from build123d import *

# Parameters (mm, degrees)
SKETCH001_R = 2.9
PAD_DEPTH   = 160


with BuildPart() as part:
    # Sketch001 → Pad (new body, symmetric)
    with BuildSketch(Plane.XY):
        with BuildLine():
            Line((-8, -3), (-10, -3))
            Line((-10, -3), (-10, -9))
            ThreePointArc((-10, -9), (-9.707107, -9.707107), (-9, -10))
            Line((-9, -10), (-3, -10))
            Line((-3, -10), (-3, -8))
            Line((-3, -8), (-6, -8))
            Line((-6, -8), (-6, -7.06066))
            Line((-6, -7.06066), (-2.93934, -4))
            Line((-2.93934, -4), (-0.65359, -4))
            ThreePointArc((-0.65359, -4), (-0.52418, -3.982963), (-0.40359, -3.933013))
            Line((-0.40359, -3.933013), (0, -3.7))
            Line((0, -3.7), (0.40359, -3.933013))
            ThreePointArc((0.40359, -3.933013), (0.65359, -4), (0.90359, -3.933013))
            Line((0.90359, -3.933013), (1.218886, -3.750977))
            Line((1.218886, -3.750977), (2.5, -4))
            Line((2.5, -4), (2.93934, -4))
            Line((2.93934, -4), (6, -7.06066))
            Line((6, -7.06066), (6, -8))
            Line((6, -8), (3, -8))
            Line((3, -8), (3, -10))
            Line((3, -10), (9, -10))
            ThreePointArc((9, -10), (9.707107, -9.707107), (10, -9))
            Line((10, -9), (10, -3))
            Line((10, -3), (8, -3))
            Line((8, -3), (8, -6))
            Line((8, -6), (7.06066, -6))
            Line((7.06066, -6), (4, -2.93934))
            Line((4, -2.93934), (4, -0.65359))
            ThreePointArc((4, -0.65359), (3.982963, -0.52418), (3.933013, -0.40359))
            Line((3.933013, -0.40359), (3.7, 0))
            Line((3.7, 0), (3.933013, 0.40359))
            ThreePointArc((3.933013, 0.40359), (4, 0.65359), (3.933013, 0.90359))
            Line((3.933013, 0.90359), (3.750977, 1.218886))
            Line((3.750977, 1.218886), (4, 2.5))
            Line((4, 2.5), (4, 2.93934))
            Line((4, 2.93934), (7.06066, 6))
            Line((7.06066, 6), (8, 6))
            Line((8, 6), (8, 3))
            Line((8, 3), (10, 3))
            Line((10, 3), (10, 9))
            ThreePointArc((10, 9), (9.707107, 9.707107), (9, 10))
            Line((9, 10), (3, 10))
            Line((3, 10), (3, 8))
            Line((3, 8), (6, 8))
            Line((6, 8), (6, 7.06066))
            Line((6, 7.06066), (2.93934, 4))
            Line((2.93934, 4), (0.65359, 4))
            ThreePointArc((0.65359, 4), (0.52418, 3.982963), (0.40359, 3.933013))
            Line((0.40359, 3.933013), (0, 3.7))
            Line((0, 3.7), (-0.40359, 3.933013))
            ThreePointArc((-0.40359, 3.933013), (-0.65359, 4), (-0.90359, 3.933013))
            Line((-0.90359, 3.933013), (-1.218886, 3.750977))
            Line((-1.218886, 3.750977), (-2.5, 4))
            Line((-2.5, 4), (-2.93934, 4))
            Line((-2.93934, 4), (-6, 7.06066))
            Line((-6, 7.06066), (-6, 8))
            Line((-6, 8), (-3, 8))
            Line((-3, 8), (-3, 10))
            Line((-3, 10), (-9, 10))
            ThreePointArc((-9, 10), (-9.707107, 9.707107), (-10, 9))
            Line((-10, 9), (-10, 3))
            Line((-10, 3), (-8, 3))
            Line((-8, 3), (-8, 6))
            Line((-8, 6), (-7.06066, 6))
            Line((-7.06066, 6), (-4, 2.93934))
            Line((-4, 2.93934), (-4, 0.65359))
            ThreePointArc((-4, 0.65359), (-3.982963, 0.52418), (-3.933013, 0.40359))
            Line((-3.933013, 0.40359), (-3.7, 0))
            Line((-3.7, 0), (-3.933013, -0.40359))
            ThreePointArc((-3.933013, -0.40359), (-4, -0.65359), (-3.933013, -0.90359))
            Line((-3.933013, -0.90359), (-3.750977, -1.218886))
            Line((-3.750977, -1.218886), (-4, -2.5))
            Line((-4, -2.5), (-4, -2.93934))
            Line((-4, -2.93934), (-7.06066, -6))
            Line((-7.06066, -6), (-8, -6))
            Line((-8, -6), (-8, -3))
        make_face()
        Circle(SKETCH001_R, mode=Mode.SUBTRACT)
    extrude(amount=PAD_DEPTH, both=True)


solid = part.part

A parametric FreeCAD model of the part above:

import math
import FreeCAD as App
import Part
import Sketcher
Q = App.Units.Quantity

doc = App.newDocument("Part")
params = doc.addObject("Spreadsheet::Sheet", "Params")
for row, (alias, value) in enumerate([
    ("sketch1_radius", "0.999999 mm"),
    ("sketch1_diameter", "5.8 mm"),
    ("sketch1_radius2", "0.500002 mm"),
    ("sketch1_width", "2 mm"),
    ("sketch1_width2", "6 mm"),
    ("pad1_length", "320 mm"),
], start=1):
    params.set(f"A{row}", alias)
    params.set(f"B{row}", "=" + value)
    params.setAlias(f"B{row}", alias)

body = doc.addObject("PartDesign::Body", "Body")

sketch1 = body.newObject("Sketcher::SketchObject", "Sketch")
sketch1.AttachmentSupport = (doc.getObject("XY_Plane"), [""])
sketch1.MapMode = "FlatFace"
sketch1.addGeometry([
    Part.LineSegment(App.Vector(-8, -3, 0), App.Vector(-10, -3, 0)),
    Part.LineSegment(App.Vector(-10, -3, 0), App.Vector(-10, -9, 0)),
    Part.ArcOfCircle(Part.Circle(App.Vector(-9, -9, 0), App.Vector(0, 0, 1), 1), math.radians(180), math.radians(270)),
    Part.LineSegment(App.Vector(-9, -10, 0), App.Vector(-3, -10, 0)),
    Part.LineSegment(App.Vector(-3, -10, 0), App.Vector(-3, -8, 0)),
    Part.LineSegment(App.Vector(-3, -8, 0), App.Vector(-6, -8, 0)),
    Part.LineSegment(App.Vector(-6, -8, 0), App.Vector(-6, -7.06, 0)),
    Part.LineSegment(App.Vector(-6, -7.06, 0), App.Vector(-2.94, -4, 0)),
    Part.LineSegment(App.Vector(-2.94, -4, 0), App.Vector(-0.65, -4, 0)),
    Part.ArcOfCircle(Part.Circle(App.Vector(-0.65, -3.5, 0), App.Vector(0, 0, 1), 0.5), math.radians(-90), math.radians(-60)),
    Part.LineSegment(App.Vector(-0.4, -3.93, 0), App.Vector(0, -3.7, 0)),
    Part.LineSegment(App.Vector(0, -3.7, 0), App.Vector(0.4, -3.93, 0)),
    Part.ArcOfCircle(Part.Circle(App.Vector(0.65, -3.5, 0), App.Vector(0, 0, 1), 0.5), math.radians(-120), math.radians(-60)),
    Part.LineSegment(App.Vector(0.9, -3.93, 0), App.Vector(1.22, -3.75, 0)),
    Part.LineSegment(App.Vector(1.22, -3.75, 0), App.Vector(2.5, -4, 0)),
    Part.LineSegment(App.Vector(2.5, -4, 0), App.Vector(2.94, -4, 0)),
    Part.LineSegment(App.Vector(2.94, -4, 0), App.Vector(6, -7.06, 0)),
    Part.LineSegment(App.Vector(6, -7.06, 0), App.Vector(6, -8, 0)),
    Part.LineSegment(App.Vector(6, -8, 0), App.Vector(3, -8, 0)),
    Part.LineSegment(App.Vector(3, -8, 0), App.Vector(3, -10, 0)),
    Part.LineSegment(App.Vector(3, -10, 0), App.Vector(9, -10, 0)),
    Part.ArcOfCircle(Part.Circle(App.Vector(9, -9, 0), App.Vector(0, 0, 1), 1), math.radians(-90), math.radians(0)),
    Part.LineSegment(App.Vector(10, -9, 0), App.Vector(10, -3, 0)),
    Part.LineSegment(App.Vector(10, -3, 0), App.Vector(8, -3, 0)),
    Part.LineSegment(App.Vector(8, -3, 0), App.Vector(8, -6, 0)),
    Part.LineSegment(App.Vector(8, -6, 0), App.Vector(7.06, -6, 0)),
    Part.LineSegment(App.Vector(7.06, -6, 0), App.Vector(4, -2.94, 0)),
    Part.LineSegment(App.Vector(4, -2.94, 0), App.Vector(4, -0.65, 0)),
    Part.ArcOfCircle(Part.Circle(App.Vector(3.5, -0.65, 0), App.Vector(0, 0, 1), 0.5), math.radians(0), math.radians(30)),
    Part.LineSegment(App.Vector(3.93, -0.4, 0), App.Vector(3.7, 0, 0)),
    Part.LineSegment(App.Vector(3.7, 0, 0), App.Vector(3.93, 0.4, 0)),
    Part.ArcOfCircle(Part.Circle(App.Vector(3.5, 0.65, 0), App.Vector(0, 0, 1), 0.5), math.radians(-30), math.radians(30)),
    Part.LineSegment(App.Vector(3.93, 0.9, 0), App.Vector(3.75, 1.22, 0)),
    Part.LineSegment(App.Vector(3.75, 1.22, 0), App.Vector(4, 2.5, 0)),
    Part.LineSegment(App.Vector(4, 2.5, 0), App.Vector(4, 2.94, 0)),
    Part.LineSegment(App.Vector(4, 2.94, 0), App.Vector(7.06, 6, 0)),
    Part.LineSegment(App.Vector(7.06, 6, 0), App.Vector(8, 6, 0)),
    Part.LineSegment(App.Vector(8, 6, 0), App.Vector(8, 3, 0)),
    Part.LineSegment(App.Vector(8, 3, 0), App.Vector(10, 3, 0)),
    Part.LineSegment(App.Vector(10, 3, 0), App.Vector(10, 9, 0)),
    Part.ArcOfCircle(Part.Circle(App.Vector(9, 9, 0), App.Vector(0, 0, 1), 1), math.radians(0), math.radians(90)),
    Part.LineSegment(App.Vector(9, 10, 0), App.Vector(3, 10, 0)),
    Part.LineSegment(App.Vector(3, 10, 0), App.Vector(3, 8, 0)),
    Part.LineSegment(App.Vector(3, 8, 0), App.Vector(6, 8, 0)),
    Part.LineSegment(App.Vector(6, 8, 0), App.Vector(6, 7.06, 0)),
    Part.LineSegment(App.Vector(6, 7.06, 0), App.Vector(2.94, 4, 0)),
    Part.LineSegment(App.Vector(2.94, 4, 0), App.Vector(0.65, 4, 0)),
    Part.ArcOfCircle(Part.Circle(App.Vector(0.65, 3.5, 0), App.Vector(0, 0, 1), 0.5), math.radians(90), math.radians(120)),
    Part.LineSegment(App.Vector(0.4, 3.93, 0), App.Vector(0, 3.7, 0)),
    Part.LineSegment(App.Vector(0, 3.7, 0), App.Vector(-0.4, 3.93, 0)),
    Part.ArcOfCircle(Part.Circle(App.Vector(-0.65, 3.5, 0), App.Vector(0, 0, 1), 0.5), math.radians(60), math.radians(120)),
    Part.LineSegment(App.Vector(-0.9, 3.93, 0), App.Vector(-1.22, 3.75, 0)),
    Part.LineSegment(App.Vector(-1.22, 3.75, 0), App.Vector(-2.5, 4, 0)),
    Part.LineSegment(App.Vector(-2.5, 4, 0), App.Vector(-2.94, 4, 0)),
    Part.LineSegment(App.Vector(-2.94, 4, 0), App.Vector(-6, 7.06, 0)),
    Part.LineSegment(App.Vector(-6, 7.06, 0), App.Vector(-6, 8, 0)),
    Part.LineSegment(App.Vector(-6, 8, 0), App.Vector(-3, 8, 0)),
    Part.LineSegment(App.Vector(-3, 8, 0), App.Vector(-3, 10, 0)),
    Part.LineSegment(App.Vector(-3, 10, 0), App.Vector(-9, 10, 0)),
    Part.ArcOfCircle(Part.Circle(App.Vector(-9, 9, 0), App.Vector(0, 0, 1), 1), math.radians(90), math.radians(180)),
    Part.LineSegment(App.Vector(-10, 9, 0), App.Vector(-10, 3, 0)),
    Part.LineSegment(App.Vector(-10, 3, 0), App.Vector(-8, 3, 0)),
    Part.LineSegment(App.Vector(-8, 3, 0), App.Vector(-8, 6, 0)),
    Part.LineSegment(App.Vector(-8, 6, 0), App.Vector(-7.06, 6, 0)),
    Part.LineSegment(App.Vector(-7.06, 6, 0), App.Vector(-4, 2.94, 0)),
    Part.LineSegment(App.Vector(-4, 2.94, 0), App.Vector(-4, 0.65, 0)),
    Part.ArcOfCircle(Part.Circle(App.Vector(-3.5, 0.65, 0), App.Vector(0, 0, 1), 0.5), math.radians(180), math.radians(210)),
    Part.LineSegment(App.Vector(-3.93, 0.4, 0), App.Vector(-3.7, 0, 0)),
    Part.LineSegment(App.Vector(-3.7, 0, 0), App.Vector(-3.93, -0.4, 0)),
    Part.ArcOfCircle(Part.Circle(App.Vector(-3.5, -0.65, 0), App.Vector(0, 0, 1), 0.5), math.radians(150), math.radians(210)),
    Part.LineSegment(App.Vector(-3.93, -0.9, 0), App.Vector(-3.75, -1.22, 0)),
    Part.LineSegment(App.Vector(-3.75, -1.22, 0), App.Vector(-4, -2.5, 0)),
    Part.LineSegment(App.Vector(-4, -2.5, 0), App.Vector(-4, -2.94, 0)),
    Part.LineSegment(App.Vector(-4, -2.94, 0), App.Vector(-7.06, -6, 0)),
    Part.LineSegment(App.Vector(-7.06, -6, 0), App.Vector(-8, -6, 0)),
    Part.LineSegment(App.Vector(-8, -6, 0), App.Vector(-8, -3, 0)),
    Part.Circle(App.Vector(0, 0, 0), App.Vector(0, 0, 1), 2.9),
], False)
sketch1.addConstraint([
    Sketcher.Constraint("Coincident", 0, 2, 1, 1),
    Sketcher.Constraint("Tangent", 1, 2, 2, 1),
    Sketcher.Constraint("Tangent", 2, 2, 3, 1),
    Sketcher.Constraint("Coincident", 3, 2, 4, 1),
    Sketcher.Constraint("Coincident", 4, 2, 5, 1),
    Sketcher.Constraint("Coincident", 5, 2, 6, 1),
    Sketcher.Constraint("Coincident", 6, 2, 7, 1),
    Sketcher.Constraint("Coincident", 7, 2, 8, 1),
    Sketcher.Constraint("Coincident", 8, 2, 9, 1),
    Sketcher.Constraint("Tangent", 9, 2, 10, 1),
    Sketcher.Constraint("Coincident", 10, 2, 11, 1),
    Sketcher.Constraint("Coincident", 11, 2, 12, 1),
    Sketcher.Constraint("Tangent", 12, 2, 13, 1),
    Sketcher.Constraint("Coincident", 13, 2, 14, 1),
    Sketcher.Constraint("Coincident", 14, 2, 15, 1),
    Sketcher.Constraint("Coincident", 15, 2, 16, 1),
    Sketcher.Constraint("Coincident", 16, 2, 17, 1),
    Sketcher.Constraint("Coincident", 17, 2, 18, 1),
    Sketcher.Constraint("Coincident", 18, 2, 19, 1),
    Sketcher.Constraint("Coincident", 19, 2, 20, 1),
    Sketcher.Constraint("Tangent", 20, 2, 21, 1),
    Sketcher.Constraint("Tangent", 21, 2, 22, 1),
    Sketcher.Constraint("Coincident", 22, 2, 23, 1),
    Sketcher.Constraint("Coincident", 23, 2, 24, 1),
    Sketcher.Constraint("Coincident", 24, 2, 25, 1),
    Sketcher.Constraint("Coincident", 25, 2, 26, 1),
    Sketcher.Constraint("Coincident", 26, 2, 27, 1),
    Sketcher.Constraint("Coincident", 27, 2, 28, 1),
    Sketcher.Constraint("Tangent", 28, 2, 29, 1),
    Sketcher.Constraint("Coincident", 29, 2, 30, 1),
    Sketcher.Constraint("Coincident", 30, 2, 31, 1),
    Sketcher.Constraint("Tangent", 31, 2, 32, 1),
    Sketcher.Constraint("Coincident", 32, 2, 33, 1),
    Sketcher.Constraint("Coincident", 33, 2, 34, 1),
    Sketcher.Constraint("Coincident", 34, 2, 35, 1),
    Sketcher.Constraint("Coincident", 35, 2, 36, 1),
    Sketcher.Constraint("Coincident", 36, 2, 37, 1),
    Sketcher.Constraint("Coincident", 37, 2, 38, 1),
    Sketcher.Constraint("Coincident", 38, 2, 39, 1),
    Sketcher.Constraint("Tangent", 39, 2, 40, 1),
    Sketcher.Constraint("Tangent", 40, 2, 41, 1),
    Sketcher.Constraint("Coincident", 41, 2, 42, 1),
    Sketcher.Constraint("Coincident", 42, 2, 43, 1),
    Sketcher.Constraint("Coincident", 43, 2, 44, 1),
    Sketcher.Constraint("Coincident", 44, 2, 45, 1),
    Sketcher.Constraint("Coincident", 45, 2, 46, 1),
    Sketcher.Constraint("Coincident", 46, 2, 47, 1),
    Sketcher.Constraint("Tangent", 47, 2, 48, 1),
    Sketcher.Constraint("Coincident", 48, 2, 49, 1),
    Sketcher.Constraint("Coincident", 49, 2, 50, 1),
    Sketcher.Constraint("Tangent", 50, 2, 51, 1),
    Sketcher.Constraint("Coincident", 51, 2, 52, 1),
    Sketcher.Constraint("Coincident", 52, 2, 53, 1),
    Sketcher.Constraint("Coincident", 53, 2, 54, 1),
    Sketcher.Constraint("Coincident", 54, 2, 55, 1),
    Sketcher.Constraint("Coincident", 55, 2, 56, 1),
    Sketcher.Constraint("Coincident", 56, 2, 57, 1),
    Sketcher.Constraint("Coincident", 57, 2, 58, 1),
    Sketcher.Constraint("Tangent", 58, 2, 59, 1),
    Sketcher.Constraint("Tangent", 59, 2, 60, 1),
    Sketcher.Constraint("Coincident", 60, 2, 61, 1),
    Sketcher.Constraint("Coincident", 61, 2, 62, 1),
    Sketcher.Constraint("Coincident", 62, 2, 63, 1),
    Sketcher.Constraint("Coincident", 63, 2, 64, 1),
    Sketcher.Constraint("Coincident", 64, 2, 65, 1),
    Sketcher.Constraint("Coincident", 65, 2, 66, 1),
    Sketcher.Constraint("Tangent", 66, 2, 67, 1),
    Sketcher.Constraint("Coincident", 67, 2, 68, 1),
    Sketcher.Constraint("Coincident", 68, 2, 69, 1),
    Sketcher.Constraint("Tangent", 69, 2, 70, 1),
    Sketcher.Constraint("Coincident", 70, 2, 71, 1),
    Sketcher.Constraint("Coincident", 71, 2, 72, 1),
    Sketcher.Constraint("Coincident", 72, 2, 73, 1),
    Sketcher.Constraint("Coincident", 73, 2, 74, 1),
    Sketcher.Constraint("Coincident", 74, 2, 75, 1),
    Sketcher.Constraint("Coincident", 75, 2, 0, 1),
    Sketcher.Constraint("Horizontal", 0),
    Sketcher.Constraint("Vertical", 1),
    Sketcher.Constraint("Horizontal", 3),
    Sketcher.Constraint("Vertical", 4),
    Sketcher.Constraint("Horizontal", 5),
    Sketcher.Constraint("Vertical", 6),
    Sketcher.Constraint("Horizontal", 8),
    Sketcher.Constraint("Horizontal", 15),
    Sketcher.Constraint("Vertical", 17),
    Sketcher.Constraint("Horizontal", 18),
    Sketcher.Constraint("Vertical", 19),
    Sketcher.Constraint("Horizontal", 20),
    Sketcher.Constraint("Vertical", 22),
    Sketcher.Constraint("Horizontal", 23),
    Sketcher.Constraint("Vertical", 24),
    Sketcher.Constraint("Horizontal", 25),
    Sketcher.Constraint("Vertical", 27),
    Sketcher.Constraint("Vertical", 34),
    Sketcher.Constraint("Horizontal", 36),
    Sketcher.Constraint("Vertical", 37),
    Sketcher.Constraint("Horizontal", 38),
    Sketcher.Constraint("Vertical", 39),
    Sketcher.Constraint("Horizontal", 41),
    Sketcher.Constraint("Vertical", 42),
    Sketcher.Constraint("Horizontal", 43),
    Sketcher.Constraint("Vertical", 44),
    Sketcher.Constraint("Horizontal", 46),
    Sketcher.Constraint("Horizontal", 53),
    Sketcher.Constraint("Vertical", 55),
    Sketcher.Constraint("Horizontal", 56),
    Sketcher.Constraint("Vertical", 57),
    Sketcher.Constraint("Horizontal", 58),
    Sketcher.Constraint("Vertical", 60),
    Sketcher.Constraint("Horizontal", 61),
    Sketcher.Constraint("Vertical", 62),
    Sketcher.Constraint("Horizontal", 63),
    Sketcher.Constraint("Vertical", 65),
    Sketcher.Constraint("Vertical", 72),
    Sketcher.Constraint("Horizontal", 74),
    Sketcher.Constraint("Vertical", 75),
    Sketcher.Constraint("Coincident", 76, 3, -1, 1),
    Sketcher.Constraint("Equal", 2, 21),
    Sketcher.Constraint("Equal", 9, 28),
    Sketcher.Constraint("Equal", 12, 31),
    Sketcher.Constraint("Equal", 21, 40),
    Sketcher.Constraint("Equal", 28, 47),
    Sketcher.Constraint("Equal", 31, 50),
    Sketcher.Constraint("Equal", 40, 59),
    Sketcher.Constraint("Equal", 47, 66),
    Sketcher.Constraint("Equal", 50, 69),
    Sketcher.Constraint("Symmetric", 2, 3, 40, 3, -1, 1),
    Sketcher.Constraint("Symmetric", 9, 3, 47, 3, -1, 1),
    Sketcher.Constraint("Symmetric", 12, 3, 50, 3, -1, 1),
    Sketcher.Constraint("Symmetric", 21, 3, 59, 3, -1, 1),
    Sketcher.Constraint("Symmetric", 28, 3, 66, 3, -1, 1),
    Sketcher.Constraint("Symmetric", 31, 3, 69, 3, -1, 1),
    Sketcher.Constraint("Symmetric", 4, 2, 42, 2, -1, 1),
    Sketcher.Constraint("Symmetric", 6, 2, 44, 2, -1, 1),
    Sketcher.Constraint("Symmetric", 10, 2, 48, 2, -1, 1),
    Sketcher.Constraint("Symmetric", 13, 2, 51, 2, -1, 1),
    Sketcher.Constraint("Symmetric", 14, 2, 52, 2, -1, 1),
    Sketcher.Constraint("Symmetric", 16, 2, 54, 2, -1, 1),
    Sketcher.Constraint("Symmetric", 18, 2, 56, 2, -1, 1),
    Sketcher.Constraint("Symmetric", 23, 2, 61, 2, -1, 1),
    Sketcher.Constraint("Symmetric", 25, 2, 63, 2, -1, 1),
    Sketcher.Constraint("Symmetric", 29, 2, 67, 2, -1, 1),
    Sketcher.Constraint("Symmetric", 32, 2, 70, 2, -1, 1),
    Sketcher.Constraint("Symmetric", 33, 2, 71, 2, -1, 1),
    Sketcher.Constraint("Symmetric", 35, 2, 73, 2, -1, 1),
    Sketcher.Constraint("Symmetric", 37, 2, 75, 2, -1, 1),
    Sketcher.Constraint("Symmetric", 9, 3, 12, 3, -2),
    Sketcher.Constraint("Symmetric", 2, 3, 21, 3, -2),
    Sketcher.Constraint("Symmetric", 31, 3, 66, 3, -2),
    Sketcher.Constraint("Symmetric", 9, 2, 11, 2, -2),
    Sketcher.Constraint("Symmetric", 7, 2, 15, 2, -2),
    Sketcher.Constraint("Symmetric", 6, 2, 16, 2, -2),
    Sketcher.Constraint("Symmetric", 4, 2, 18, 2, -2),
    Sketcher.Constraint("Symmetric", 37, 2, 61, 2, -2),
    Sketcher.Constraint("Symmetric", 35, 2, 63, 2, -2),
    Sketcher.Constraint("Symmetric", 34, 2, 64, 2, -2),
    Sketcher.Constraint("PointOnObject", 10, 2, -2),
    Sketcher.Constraint("PointOnObject", 29, 2, -1),
    Sketcher.Constraint("Parallel", 10, 13),
    Sketcher.Constraint("Perpendicular", 7, 16),
    Sketcher.Constraint("Parallel", 16, 26),
    Sketcher.Constraint("Perpendicular", 13, 29),
    Sketcher.Constraint("Parallel", 29, 32),
    Sketcher.Constraint("Perpendicular", 14, 33),
    Sketcher.Constraint("Perpendicular", 26, 35),
    Sketcher.Constraint("Parallel", 35, 45),
    Sketcher.Constraint("Perpendicular", 45, 54),
    Sketcher.Constraint("Perpendicular", 64, 73),
    Sketcher.Constraint("Horizontal", 69, 3, 27, 2),
    Sketcher.Constraint("Horizontal", 47, 2, 49, 2),
    Sketcher.Constraint("Horizontal", 66, 3, 65, 2),
    Sketcher.Constraint("Horizontal", 30, 2, 66, 2),
    Sketcher.Constraint("Horizontal", 28, 2, 68, 2),
    Sketcher.Constraint("Vertical", 50, 3, 8, 2),
    Sketcher.Constraint("Vertical", 47, 3, 46, 2),
    Sketcher.Constraint("Equal", 58, 1),
    Sketcher.Constraint("Equal", 61, 4),
    Sketcher.Constraint("Equal", 74, 6),
    Sketcher.Constraint("Equal", 56, 24),
    Sketcher.Constraint("Equal", 46, 27),
    Sketcher.Constraint("Equal", 53, 34),
    Sketcher.Constraint("Equal", 16, 26),
    Sketcher.Constraint("Equal", 11, 29),
    Sketcher.Constraint("Radius", 2, 0.999999),
    Sketcher.Constraint("Diameter", 76, 5.8),
    Sketcher.Constraint("Radius", 12, 0.500002),
    Sketcher.Constraint("DistanceX", 0, 2, 0, 1, 2.0),
    Sketcher.Constraint("DistanceX", 3, 1, 3, 2, 6.0),
    Sketcher.Constraint("DistanceX", 5, 2, 5, 1, 3.0),
    Sketcher.Constraint("Angle", 14, Q("-10.999986 deg")),
    Sketcher.Constraint("DistanceX", 2, 3, -1, 1, 9.000001),
    Sketcher.Constraint("DistanceY", 7, 2, -1, 1, 4.0),
    Sketcher.Constraint("DistanceY", 10, 2, -1, 1, 3.7),
    Sketcher.Constraint("DistanceX", -1, 1, 14, 2, 2.5),
    Sketcher.Constraint("DistanceX", 8, 1, 8, 2, 2.28575),
    Sketcher.Constraint("DistanceX", 15, 1, 15, 2, 0.43934),
])
sketch1.setExpression("Constraints[183]", "Params.sketch1_radius")
sketch1.setExpression("Constraints[184]", "Params.sketch1_diameter")
sketch1.setExpression("Constraints[185]", "Params.sketch1_radius2")
sketch1.setExpression("Constraints[186]", "Params.sketch1_width")
sketch1.setExpression("Constraints[187]", "Params.sketch1_width2")
pad1 = body.newObject("PartDesign::Pad", "Pad")
pad1.Profile = sketch1
pad1.setExpression("Length", "Params.pad1_length")
pad1.Midplane = True

doc.recompute()
